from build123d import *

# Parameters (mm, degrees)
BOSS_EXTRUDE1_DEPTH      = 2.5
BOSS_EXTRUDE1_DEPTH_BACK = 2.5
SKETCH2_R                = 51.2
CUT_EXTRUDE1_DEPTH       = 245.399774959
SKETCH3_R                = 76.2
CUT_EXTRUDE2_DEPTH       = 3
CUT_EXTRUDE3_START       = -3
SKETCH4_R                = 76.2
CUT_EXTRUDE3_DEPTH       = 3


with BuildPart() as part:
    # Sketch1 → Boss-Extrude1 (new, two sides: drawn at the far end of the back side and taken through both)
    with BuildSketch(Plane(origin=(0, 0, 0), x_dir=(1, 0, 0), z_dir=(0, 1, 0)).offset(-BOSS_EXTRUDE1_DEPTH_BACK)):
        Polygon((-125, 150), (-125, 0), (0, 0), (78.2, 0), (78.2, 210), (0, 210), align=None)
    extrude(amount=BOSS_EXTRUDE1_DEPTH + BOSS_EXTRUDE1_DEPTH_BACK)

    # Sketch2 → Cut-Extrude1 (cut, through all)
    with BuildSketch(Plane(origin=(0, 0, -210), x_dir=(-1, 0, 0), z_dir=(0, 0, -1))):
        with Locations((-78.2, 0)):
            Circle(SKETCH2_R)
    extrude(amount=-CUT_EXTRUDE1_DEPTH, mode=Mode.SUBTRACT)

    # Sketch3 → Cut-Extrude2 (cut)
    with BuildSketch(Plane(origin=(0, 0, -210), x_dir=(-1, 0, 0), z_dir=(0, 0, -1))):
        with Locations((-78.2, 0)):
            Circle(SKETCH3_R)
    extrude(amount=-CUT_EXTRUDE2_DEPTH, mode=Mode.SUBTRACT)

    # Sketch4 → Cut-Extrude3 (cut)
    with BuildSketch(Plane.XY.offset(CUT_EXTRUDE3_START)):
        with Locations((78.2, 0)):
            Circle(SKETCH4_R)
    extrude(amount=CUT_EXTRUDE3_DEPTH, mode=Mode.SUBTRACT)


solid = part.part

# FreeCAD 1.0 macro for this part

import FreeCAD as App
import Part
import Sketcher

V = App.Vector
Q = App.Units.Quantity

doc = App.newDocument("Part")
body = doc.addObject("PartDesign::Body", "Body")

# Sketch on XZ plane
sketch1 = body.newObject("Sketcher::SketchObject", "Sketch")
sketch1.AttachmentSupport = (doc.getObject("XZ_Plane"), [""])
sketch1.MapMode = "FlatFace"
sketch1.addGeometry([
    Part.LineSegment(V(-125, -150, 0), V(-125, 0, 0)),  # 0
    Part.LineSegment(V(-125, 0, 0), V(78, 0, 0)),  # 1
    Part.LineSegment(V(78, 0, 0), V(78, -210, 0)),  # 2
    Part.LineSegment(V(78, -210, 0), V(0, -210, 0)),  # 3
    Part.LineSegment(V(0, -210, 0), V(-125, -150, 0)),  # 4
], False)
sketch1.addConstraint([
    Sketcher.Constraint("Coincident", 0, 2, 1, 1),
    Sketcher.Constraint("Coincident", 1, 2, 2, 1),
    Sketcher.Constraint("Coincident", 2, 2, 3, 1),
    Sketcher.Constraint("Coincident", 3, 2, 4, 1),
    Sketcher.Constraint("Coincident", 4, 2, 0, 1),
    Sketcher.Constraint("Vertical", 0),
    Sketcher.Constraint("Horizontal", 1),
    Sketcher.Constraint("Vertical", 2),
    Sketcher.Constraint("Horizontal", 3),
    Sketcher.Constraint("PointOnObject", 0, 2, -1),
    Sketcher.Constraint("PointOnObject", 3, 2, -2),
    Sketcher.Constraint("DistanceY", 0, 1, 0, 2, Q("150 mm")),
    Sketcher.Constraint("DistanceY", 2, 2, 2, 1, Q("210 mm")),
    Sketcher.Constraint("DistanceX", 1, 1, 1, 2, Q("203.2 mm")),
    Sketcher.Constraint("DistanceX", 3, 2, 3, 1, Q("78.2 mm")),
])
pad1 = body.newObject("PartDesign::Pad", "Pad")
pad1.Profile = sketch1
pad1.Type = "TwoLengths"
pad1.Length = 2.5
pad1.Length2 = 2.5
pad1.Reversed = True

# Sketch on XY plane
sketch2 = body.newObject("Sketcher::SketchObject", "Sketch001")
sketch2.AttachmentSupport = (doc.getObject("XY_Plane"), [""])
sketch2.MapMode = "FlatFace"
sketch2.AttachmentOffset = App.Placement(V(0, 0, -210), App.Rotation())
sketch2.addGeometry(Part.Circle(V(78, 0, 0), V(0, 0, 1), 51), False)
sketch2.addConstraint([
    Sketcher.Constraint("PointOnObject", 0, 3, -1),
    Sketcher.Constraint("Diameter", 0, Q("102.4 mm")),
    Sketcher.Constraint("DistanceX", -1, 1, 0, 3, Q("78.2 mm")),
])
pocket1 = body.newObject("PartDesign::Pocket", "Pocket")
pocket1.Profile = sketch2
pocket1.Type = "ThroughAll"
pocket1.Reversed = True

# Sketch on XY plane
sketch3 = body.newObject("Sketcher::SketchObject", "Sketch002")
sketch3.AttachmentSupport = (doc.getObject("XY_Plane"), [""])
sketch3.MapMode = "FlatFace"
sketch3.AttachmentOffset = App.Placement(V(0, 0, -210), App.Rotation())
sketch3.addGeometry(Part.Circle(V(78, 0, 0), V(0, 0, 1), 76), False)
sketch3.addConstraint([
    Sketcher.Constraint("PointOnObject", 0, 3, -1),
    Sketcher.Constraint("Diameter", 0, Q("152.4 mm")),
    Sketcher.Constraint("DistanceX", -1, 1, 0, 3, Q("78.2 mm")),
])
pocket2 = body.newObject("PartDesign::Pocket", "Pocket001")
pocket2.Profile = sketch3
pocket2.Length = 3
pocket2.Reversed = True

# Sketch on XY plane
sketch4 = body.newObject("Sketcher::SketchObject", "Sketch003")
sketch4.AttachmentSupport = (doc.getObject("XY_Plane"), [""])
sketch4.MapMode = "FlatFace"
sketch4.AttachmentOffset = App.Placement(V(0, 0, -3), App.Rotation())
sketch4.addGeometry(Part.Circle(V(78, 0, 0), V(0, 0, 1), 76), False)
sketch4.addConstraint([
    Sketcher.Constraint("PointOnObject", 0, 3, -1),
    Sketcher.Constraint("Diameter", 0, Q("152.4 mm")),
    Sketcher.Constraint("DistanceX", -1, 1, 0, 3, Q("78.2 mm")),
])
pocket3 = body.newObject("PartDesign::Pocket", "Pocket002")
pocket3.Profile = sketch4
pocket3.Length = 3
pocket3.Reversed = True

doc.recompute()
